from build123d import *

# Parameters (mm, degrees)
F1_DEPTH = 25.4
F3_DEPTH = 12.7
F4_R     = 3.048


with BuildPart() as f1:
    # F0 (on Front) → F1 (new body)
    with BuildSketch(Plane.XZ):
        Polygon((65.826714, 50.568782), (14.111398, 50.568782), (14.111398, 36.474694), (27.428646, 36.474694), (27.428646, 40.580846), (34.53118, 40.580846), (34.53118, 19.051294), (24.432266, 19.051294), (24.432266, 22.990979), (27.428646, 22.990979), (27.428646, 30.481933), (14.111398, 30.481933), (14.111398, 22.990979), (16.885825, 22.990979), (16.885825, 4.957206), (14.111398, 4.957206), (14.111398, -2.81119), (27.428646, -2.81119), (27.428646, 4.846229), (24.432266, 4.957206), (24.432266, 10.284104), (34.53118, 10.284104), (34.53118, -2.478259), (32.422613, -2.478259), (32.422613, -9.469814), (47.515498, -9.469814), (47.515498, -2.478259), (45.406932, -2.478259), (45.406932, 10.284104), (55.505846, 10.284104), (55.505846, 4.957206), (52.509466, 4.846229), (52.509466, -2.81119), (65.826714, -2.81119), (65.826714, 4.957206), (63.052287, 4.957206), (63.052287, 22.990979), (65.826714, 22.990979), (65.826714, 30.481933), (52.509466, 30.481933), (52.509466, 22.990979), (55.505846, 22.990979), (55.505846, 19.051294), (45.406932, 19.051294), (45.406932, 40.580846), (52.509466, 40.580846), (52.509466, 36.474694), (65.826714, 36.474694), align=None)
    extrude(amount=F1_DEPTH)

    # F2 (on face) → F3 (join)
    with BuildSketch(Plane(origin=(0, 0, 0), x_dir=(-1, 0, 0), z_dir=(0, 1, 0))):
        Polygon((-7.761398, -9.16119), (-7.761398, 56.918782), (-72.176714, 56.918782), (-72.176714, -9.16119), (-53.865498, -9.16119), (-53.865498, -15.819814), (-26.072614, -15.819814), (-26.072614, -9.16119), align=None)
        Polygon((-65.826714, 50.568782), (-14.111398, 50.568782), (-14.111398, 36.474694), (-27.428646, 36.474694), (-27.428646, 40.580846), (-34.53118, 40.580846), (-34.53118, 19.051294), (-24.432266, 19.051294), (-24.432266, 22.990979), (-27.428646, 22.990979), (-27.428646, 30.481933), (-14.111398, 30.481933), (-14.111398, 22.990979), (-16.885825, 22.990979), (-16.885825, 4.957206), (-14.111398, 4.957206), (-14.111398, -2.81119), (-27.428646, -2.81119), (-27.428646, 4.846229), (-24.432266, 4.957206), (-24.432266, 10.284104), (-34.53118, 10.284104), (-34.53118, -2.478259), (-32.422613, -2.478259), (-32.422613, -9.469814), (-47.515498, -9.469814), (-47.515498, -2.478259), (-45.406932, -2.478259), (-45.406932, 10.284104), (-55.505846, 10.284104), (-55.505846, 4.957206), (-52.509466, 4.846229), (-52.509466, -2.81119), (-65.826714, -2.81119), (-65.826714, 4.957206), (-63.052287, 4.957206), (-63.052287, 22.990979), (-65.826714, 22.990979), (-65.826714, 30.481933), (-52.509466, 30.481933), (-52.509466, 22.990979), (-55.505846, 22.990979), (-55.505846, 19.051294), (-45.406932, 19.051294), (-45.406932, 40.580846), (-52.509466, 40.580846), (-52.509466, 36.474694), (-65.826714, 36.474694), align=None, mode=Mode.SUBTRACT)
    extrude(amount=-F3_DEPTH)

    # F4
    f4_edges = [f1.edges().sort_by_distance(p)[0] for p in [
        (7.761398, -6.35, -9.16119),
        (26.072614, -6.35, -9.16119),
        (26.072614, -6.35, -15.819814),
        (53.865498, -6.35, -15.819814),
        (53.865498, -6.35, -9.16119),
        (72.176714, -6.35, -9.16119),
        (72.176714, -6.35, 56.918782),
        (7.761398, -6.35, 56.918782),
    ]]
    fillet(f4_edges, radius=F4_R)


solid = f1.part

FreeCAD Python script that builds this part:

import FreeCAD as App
import Part
import Sketcher
from FreeCAD import Vector
Q = App.Units.Quantity


def edges_at(feature, points):
    """Names of the edges that pass closest to the given points."""
    edges = feature.Shape.Edges
    near = lambda p: min(range(len(edges)), key=lambda i: edges[i].distToShape(Part.Vertex(*p))[0])
    return sorted({f"Edge{near(p) + 1}" for p in points})


def add_polygon(sketch, points):
    """Adds a closed chain of lines whose ends are joined by coincident constraints."""
    first, n = sketch.GeometryCount, len(points)
    for a, b in zip(points, points[1:] + points[:1]):
        sketch.addGeometry(Part.LineSegment(App.Vector(*a, 0), App.Vector(*b, 0)), False)
    for i in range(n):
        sketch.addConstraint(Sketcher.Constraint("Coincident", first + i, 2, first + (i + 1) % n, 1))

doc = App.newDocument("Part")
params = doc.addObject("Spreadsheet::Sheet", "Params")
for row, (alias, value) in enumerate([
    ("pad1_length", "1 in"),
    ("pad2_length", "0.5 in"),
    ("fillet_radius", "0.12 in"),
], start=1):
    params.set(f"A{row}", alias)
    params.set(f"B{row}", "=" + value)
    params.setAlias(f"B{row}", alias)

body = doc.addObject("PartDesign::Body", "Body")

# Sketch on XZ plane
sketch1 = doc.addObject("Sketcher::SketchObject", "Sketch")
body.addObject(sketch1)
sketch1.AttachmentSupport = (doc.XZ_Plane, [""])
sketch1.MapMode = "FlatFace"
add_polygon(sketch1, [(65.8, 50.6), (14.1, 50.6), (14.1, 36.5), (27.4, 36.5), (27.4, 40.6), (34.5, 40.6), (34.5, 19.1), (24.4, 19.1), (24.4, 23), (27.4, 23), (27.4, 30.5), (14.1, 30.5), (14.1, 23), (16.9, 23), (16.9, 5), (14.1, 5), (14.1, -2.8), (27.4, -2.8), (27.4, 4.8), (24.4, 5), (24.4, 10.3), (34.5, 10.3), (34.5, -2.5), (32.4, -2.5), (32.4, -9.5), (47.5, -9.5), (47.5, -2.5), (45.4, -2.5), (45.4, 10.3), (55.5, 10.3), (55.5, 5), (52.5, 4.8), (52.5, -2.8), (65.8, -2.8), (65.8, 5), (63.1, 5), (63.1, 23), (65.8, 23), (65.8, 30.5), (52.5, 30.5), (52.5, 23), (55.5, 23), (55.5, 19.1), (45.4, 19.1), (45.4, 40.6), (52.5, 40.6), (52.5, 36.5), (65.8, 36.5)])  # lines 0-47
sketch1.addConstraint([
    Sketcher.Constraint("Horizontal", 0),
    Sketcher.Constraint("Vertical", 1),
    Sketcher.Constraint("Horizontal", 2),
    Sketcher.Constraint("Vertical", 3),
    Sketcher.Constraint("Horizontal", 4),
    Sketcher.Constraint("Vertical", 5),
    Sketcher.Constraint("Horizontal", 6),
    Sketcher.Constraint("Vertical", 7),
    Sketcher.Constraint("Horizontal", 8),
    Sketcher.Constraint("Vertical", 9),
    Sketcher.Constraint("Horizontal", 10),
    Sketcher.Constraint("Vertical", 11),
    Sketcher.Constraint("Horizontal", 12),
    Sketcher.Constraint("Vertical", 13),
    Sketcher.Constraint("Horizontal", 14),
    Sketcher.Constraint("Vertical", 15),
    Sketcher.Constraint("Horizontal", 16),
    Sketcher.Constraint("Vertical", 17),
    Sketcher.Constraint("Vertical", 19),
    Sketcher.Constraint("Horizontal", 20),
    Sketcher.Constraint("Vertical", 21),
    Sketcher.Constraint("Horizontal", 22),
    Sketcher.Constraint("Vertical", 23),
    Sketcher.Constraint("Horizontal", 24),
    Sketcher.Constraint("Vertical", 25),
    Sketcher.Constraint("Horizontal", 26),
    Sketcher.Constraint("Vertical", 27),
    Sketcher.Constraint("Horizontal", 28),
    Sketcher.Constraint("Vertical", 29),
    Sketcher.Constraint("Vertical", 31),
    Sketcher.Constraint("Horizontal", 32),
    Sketcher.Constraint("Vertical", 33),
    Sketcher.Constraint("Horizontal", 34),
    Sketcher.Constraint("Vertical", 35),
    Sketcher.Constraint("Horizontal", 36),
    Sketcher.Constraint("Vertical", 37),
    Sketcher.Constraint("Horizontal", 38),
    Sketcher.Constraint("Vertical", 39),
    Sketcher.Constraint("Horizontal", 40),
    Sketcher.Constraint("Vertical", 41),
    Sketcher.Constraint("Horizontal", 42),
    Sketcher.Constraint("Vertical", 43),
    Sketcher.Constraint("Horizontal", 44),
    Sketcher.Constraint("Vertical", 45),
    Sketcher.Constraint("Horizontal", 46),
    Sketcher.Constraint("Vertical", 47),
    Sketcher.Constraint("Horizontal", 8, 2, 11, 2),
    Sketcher.Constraint("Horizontal", 14, 2, 18, 2),
    Sketcher.Constraint("Horizontal", 22, 2, 25, 2),
    Sketcher.Constraint("Horizontal", 20, 2, 27, 2),
    Sketcher.Constraint("Horizontal", 18, 2, 29, 2),
    Sketcher.Constraint("Horizontal", 17, 2, 30, 2),
    Sketcher.Constraint("Horizontal", 16, 2, 31, 2),
    Sketcher.Constraint("Horizontal", 29, 2, 33, 2),
    Sketcher.Constraint("Horizontal", 12, 2, 35, 2),
    Sketcher.Constraint("Horizontal", 10, 2, 37, 2),
    Sketcher.Constraint("Horizontal", 36, 2, 39, 2),
    Sketcher.Constraint("Horizontal", 6, 2, 41, 2),
    Sketcher.Constraint("Horizontal", 4, 2, 43, 2),
    Sketcher.Constraint("Horizontal", 2, 2, 45, 2),
    Sketcher.Constraint("Vertical", 3, 2, 8, 2),
    Sketcher.Constraint("Vertical", 1, 2, 10, 2),
    Sketcher.Constraint("Vertical", 11, 2, 14, 2),
    Sketcher.Constraint("Vertical", 9, 2, 16, 2),
    Sketcher.Constraint("Vertical", 7, 2, 18, 2),
    Sketcher.Constraint("Vertical", 5, 2, 20, 2),
    Sketcher.Constraint("Vertical", 33, 2, 36, 2),
    Sketcher.Constraint("Vertical", 31, 2, 38, 2),
    Sketcher.Constraint("Vertical", 29, 2, 40, 2),
    Sketcher.Constraint("Vertical", 27, 2, 42, 2),
    Sketcher.Constraint("Vertical", 39, 2, 44, 2),
    Sketcher.Constraint("Vertical", 37, 2, 46, 2),
    Sketcher.Constraint("Equal", 22, 26),
    Sketcher.Constraint("Equal", 20, 28),
    Sketcher.Constraint("Equal", 16, 32),
    Sketcher.Constraint("Equal", 14, 34),
    Sketcher.Constraint("Equal", 8, 40),
    Sketcher.Constraint("DistanceX", 2, 1, 2, 2, Q("13.317248 mm")),
    Sketcher.Constraint("DistanceX", 8, 1, 8, 2, Q("2.99638 mm")),
    Sketcher.Constraint("DistanceY", 17, 1, 17, 2, Q("7.657419 mm")),
    Sketcher.Constraint("DistanceY", 5, 2, 2, 2, Q("17.4234 mm")),
    Sketcher.Constraint("DistanceX", 0, 2, 0, 1, Q("51.715316 mm")),
    Sketcher.Constraint("DistanceX", 4, 1, 4, 2, Q("7.102534 mm")),
    Sketcher.Constraint("DistanceX", 12, 1, 12, 2, Q("2.774427 mm")),
    Sketcher.Constraint("DistanceX", 22, 2, 22, 1, Q("2.108567 mm")),
    Sketcher.Constraint("DistanceY", 1, 2, 1, 1, Q("14.094088 mm")),
    Sketcher.Constraint("DistanceY", 3, 1, 3, 2, Q("4.106152 mm")),
    Sketcher.Constraint("DistanceY", 7, 1, 7, 2, Q("3.939685 mm")),
    Sketcher.Constraint("DistanceY", 9, 1, 9, 2, Q("7.490954 mm")),
    Sketcher.Constraint("DistanceY", 13, 2, 13, 1, Q("18.033773 mm")),
    Sketcher.Constraint("DistanceY", 15, 2, 15, 1, Q("7.768396 mm")),
    Sketcher.Constraint("DistanceY", 19, 1, 19, 2, Q("5.326898 mm")),
    Sketcher.Constraint("DistanceY", 21, 2, 21, 1, Q("12.762363 mm")),
    Sketcher.Constraint("DistanceY", 23, 2, 23, 1, Q("6.991555 mm")),
    Sketcher.Constraint("DistanceX", -1, 1, 4, 2, Q("34.53118 mm")),
    Sketcher.Constraint("DistanceY", -1, 1, 7, 2, Q("22.990979 mm")),
])
pad1 = doc.addObject("PartDesign::Pad", "Pad")
body.addObject(pad1)
pad1.Profile = sketch1
pad1.setExpression("Length", "Params.pad1_length")

# Sketch on XZ plane
sketch2 = doc.addObject("Sketcher::SketchObject", "Sketch001")
body.addObject(sketch2)
sketch2.AttachmentSupport = (doc.XZ_Plane, [""])
sketch2.MapMode = "FlatFace"
add_polygon(sketch2, [(7.8, -9.2), (7.8, 56.9), (72.2, 56.9), (72.2, -9.2), (53.9, -9.2), (53.9, -15.8), (26.1, -15.8), (26.1, -9.2)])  # lines 0-7
add_polygon(sketch2, [(65.8, 36.5), (65.8, 50.6), (14.1, 50.6), (14.1, 36.5), (27.4, 36.5), (27.4, 40.6), (34.5, 40.6), (34.5, 19.1), (24.4, 19.1), (24.4, 23), (27.4, 23), (27.4, 30.5), (14.1, 30.5), (14.1, 23), (16.9, 23), (16.9, 5), (14.1, 5), (14.1, -2.8), (27.4, -2.8), (27.4, 4.8), (24.4, 5), (24.4, 10.3), (34.5, 10.3), (34.5, -2.5), (32.4, -2.5), (32.4, -9.5), (47.5, -9.5), (47.5, -2.5), (45.4, -2.5), (45.4, 10.3), (55.5, 10.3), (55.5, 5), (52.5, 4.8), (52.5, -2.8), (65.8, -2.8), (65.8, 5), (63.1, 5), (63.1, 23), (65.8, 23), (65.8, 30.5), (52.5, 30.5), (52.5, 23), (55.5, 23), (55.5, 19.1), (45.4, 19.1), (45.4, 40.6), (52.5, 40.6), (52.5, 36.5)])  # lines 8-55
sketch2.addConstraint([
    Sketcher.Constraint("Vertical", 0),
    Sketcher.Constraint("Horizontal", 1),
    Sketcher.Constraint("Vertical", 2),
    Sketcher.Constraint("Horizontal", 3),
    Sketcher.Constraint("Vertical", 4),
    Sketcher.Constraint("Horizontal", 5),
    Sketcher.Constraint("Vertical", 6),
    Sketcher.Constraint("Horizontal", 7),
    Sketcher.Constraint("Vertical", 8),
    Sketcher.Constraint("Horizontal", 9),
    Sketcher.Constraint("Vertical", 10),
    Sketcher.Constraint("Horizontal", 11),
    Sketcher.Constraint("Vertical", 12),
    Sketcher.Constraint("Horizontal", 13),
    Sketcher.Constraint("Vertical", 14),
    Sketcher.Constraint("Horizontal", 15),
    Sketcher.Constraint("Vertical", 16),
    Sketcher.Constraint("Horizontal", 17),
    Sketcher.Constraint("Vertical", 18),
    Sketcher.Constraint("Horizontal", 19),
    Sketcher.Constraint("Vertical", 20),
    Sketcher.Constraint("Horizontal", 21),
    Sketcher.Constraint("Vertical", 22),
    Sketcher.Constraint("Horizontal", 23),
    Sketcher.Constraint("Vertical", 24),
    Sketcher.Constraint("Horizontal", 25),
    Sketcher.Constraint("Vertical", 26),
    Sketcher.Constraint("Vertical", 28),
    Sketcher.Constraint("Horizontal", 29),
    Sketcher.Constraint("Vertical", 30),
    Sketcher.Constraint("Horizontal", 31),
    Sketcher.Constraint("Vertical", 32),
    Sketcher.Constraint("Horizontal", 33),
    Sketcher.Constraint("Vertical", 34),
    Sketcher.Constraint("Horizontal", 35),
    Sketcher.Constraint("Vertical", 36),
    Sketcher.Constraint("Horizontal", 37),
    Sketcher.Constraint("Vertical", 38),
    Sketcher.Constraint("Vertical", 40),
    Sketcher.Constraint("Horizontal", 41),
    Sketcher.Constraint("Vertical", 42),
    Sketcher.Constraint("Horizontal", 43),
    Sketcher.Constraint("Vertical", 44),
    Sketcher.Constraint("Horizontal", 45),
    Sketcher.Constraint("Vertical", 46),
    Sketcher.Constraint("Horizontal", 47),
    Sketcher.Constraint("Vertical", 48),
    Sketcher.Constraint("Horizontal", 49),
    Sketcher.Constraint("Vertical", 50),
    Sketcher.Constraint("Horizontal", 51),
    Sketcher.Constraint("Vertical", 52),
    Sketcher.Constraint("Horizontal", 53),
    Sketcher.Constraint("Vertical", 54),
    Sketcher.Constraint("Horizontal", 55),
    Sketcher.Constraint("Horizontal", 3, 2, 6, 2),
    Sketcher.Constraint("Horizontal", 17, 2, 20, 2),
    Sketcher.Constraint("Horizontal", 23, 2, 27, 2),
    Sketcher.Constraint("Horizontal", 31, 2, 34, 2),
    Sketcher.Constraint("Horizontal", 29, 2, 36, 2),
    Sketcher.Constraint("Horizontal", 27, 2, 38, 2),
    Sketcher.Constraint("Horizontal", 26, 2, 39, 2),
    Sketcher.Constraint("Horizontal", 25, 2, 40, 2),
    Sketcher.Constraint("Horizontal", 38, 2, 42, 2),
    Sketcher.Constraint("Horizontal", 21, 2, 44, 2),
    Sketcher.Constraint("Horizontal", 19, 2, 46, 2),
    Sketcher.Constraint("Horizontal", 45, 2, 48, 2),
    Sketcher.Constraint("Horizontal", 15, 2, 50, 2),
    Sketcher.Constraint("Horizontal", 13, 2, 52, 2),
    Sketcher.Constraint("Horizontal", 11, 2, 54, 2),
    Sketcher.Constraint("Vertical", 12, 2, 17, 2),
    Sketcher.Constraint("Vertical", 10, 2, 19, 2),
    Sketcher.Constraint("Vertical", 20, 2, 23, 2),
    Sketcher.Constraint("Vertical", 18, 2, 25, 2),
    Sketcher.Constraint("Vertical", 16, 2, 27, 2),
    Sketcher.Constraint("Vertical", 14, 2, 29, 2),
    Sketcher.Constraint("Vertical", 8, 2, 41, 2),
    Sketcher.Constraint("Vertical", 42, 2, 45, 2),
    Sketcher.Constraint("Vertical", 40, 2, 47, 2),
    Sketcher.Constraint("Vertical", 38, 2, 49, 2),
    Sketcher.Constraint("Vertical", 36, 2, 51, 2),
    Sketcher.Constraint("Vertical", 48, 2, 53, 2),
    Sketcher.Constraint("Equal", 3, 7),
    Sketcher.Constraint("Equal", 31, 35),
    Sketcher.Constraint("Equal", 29, 37),
    Sketcher.Constraint("Equal", 25, 41),
    Sketcher.Constraint("Equal", 23, 43),
    Sketcher.Constraint("Equal", 17, 49),
    Sketcher.Constraint("DistanceX", 8, 2, 1, 2, Q("0.25 in")),
    Sketcher.Constraint("DistanceY", 8, 2, 1, 2, Q("0.25 in")),
    Sketcher.Constraint("DistanceX", 0, 2, 9, 2, Q("0.25 in")),
    Sketcher.Constraint("DistanceY", 7, 2, 24, 2, Q("0.25 in")),
    Sketcher.Constraint("DistanceX", 6, 2, 31, 2, Q("0.25 in")),
    Sketcher.Constraint("DistanceY", 5, 2, 32, 2, Q("0.25 in")),
    Sketcher.Constraint("DistanceX", 11, 1, 11, 2, Q("13.317248 mm")),
    Sketcher.Constraint("DistanceX", 17, 1, 17, 2, Q("2.99638 mm")),
    Sketcher.Constraint("DistanceY", 0, 1, 0, 2, Q("66.079972 mm")),
    Sketcher.Constraint("DistanceY", 26, 1, 26, 2, Q("7.657419 mm")),
    Sketcher.Constraint("DistanceX", -1, 1, 3, 2, Q("53.865498 mm")),
    Sketcher.Constraint("DistanceX", 0, 2, 3, 2, Q("46.1041 mm")),
    Sketcher.Constraint("DistanceY", 14, 2, 11, 2, Q("17.4234 mm")),
    Sketcher.Constraint("DistanceX", 1, 1, 1, 2, Q("64.415316 mm")),
    Sketcher.Constraint("DistanceX", 13, 1, 13, 2, Q("7.102534 mm")),
    Sketcher.Constraint("DistanceX", 21, 1, 21, 2, Q("2.774427 mm")),
    Sketcher.Constraint("DistanceY", 4, 2, 4, 1, Q("6.658624 mm")),
    Sketcher.Constraint("DistanceY", 8, 1, 8, 2, Q("14.094088 mm")),
    Sketcher.Constraint("DistanceY", 12, 1, 12, 2, Q("4.106152 mm")),
    Sketcher.Constraint("DistanceY", 16, 1, 16, 2, Q("3.939685 mm")),
    Sketcher.Constraint("DistanceY", 18, 1, 18, 2, Q("7.490954 mm")),
    Sketcher.Constraint("DistanceY", 22, 2, 22, 1, Q("18.033773 mm")),
    Sketcher.Constraint("DistanceY", 28, 1, 28, 2, Q("5.326898 mm")),
    Sketcher.Constraint("DistanceY", 30, 2, 30, 1, Q("12.762363 mm")),
    Sketcher.Constraint("DistanceY", 2, 2, -1, 1, Q("9.16119 mm")),
])
pad2 = doc.addObject("PartDesign::Pad", "Pad001")
body.addObject(pad2)
pad2.Profile = sketch2
pad2.setExpression("Length", "Params.pad2_length")
doc.recompute()

fillet = doc.addObject("PartDesign::Fillet", "Fillet")
body.addObject(fillet)
fillet.Base = (pad2, edges_at(pad2, [
    (7.761, -6.35, -9.161),
    (26.073, -6.35, -9.161),
    (26.073, -6.35, -15.82),
    (53.865, -6.35, -15.82),
    (53.865, -6.35, -9.161),
    (72.177, -6.35, -9.161),
    (72.177, -6.35, 56.919),
    (7.761, -6.35, 56.919),
]))
fillet.setExpression("Radius", "Params.fillet_radius")

doc.recompute()
